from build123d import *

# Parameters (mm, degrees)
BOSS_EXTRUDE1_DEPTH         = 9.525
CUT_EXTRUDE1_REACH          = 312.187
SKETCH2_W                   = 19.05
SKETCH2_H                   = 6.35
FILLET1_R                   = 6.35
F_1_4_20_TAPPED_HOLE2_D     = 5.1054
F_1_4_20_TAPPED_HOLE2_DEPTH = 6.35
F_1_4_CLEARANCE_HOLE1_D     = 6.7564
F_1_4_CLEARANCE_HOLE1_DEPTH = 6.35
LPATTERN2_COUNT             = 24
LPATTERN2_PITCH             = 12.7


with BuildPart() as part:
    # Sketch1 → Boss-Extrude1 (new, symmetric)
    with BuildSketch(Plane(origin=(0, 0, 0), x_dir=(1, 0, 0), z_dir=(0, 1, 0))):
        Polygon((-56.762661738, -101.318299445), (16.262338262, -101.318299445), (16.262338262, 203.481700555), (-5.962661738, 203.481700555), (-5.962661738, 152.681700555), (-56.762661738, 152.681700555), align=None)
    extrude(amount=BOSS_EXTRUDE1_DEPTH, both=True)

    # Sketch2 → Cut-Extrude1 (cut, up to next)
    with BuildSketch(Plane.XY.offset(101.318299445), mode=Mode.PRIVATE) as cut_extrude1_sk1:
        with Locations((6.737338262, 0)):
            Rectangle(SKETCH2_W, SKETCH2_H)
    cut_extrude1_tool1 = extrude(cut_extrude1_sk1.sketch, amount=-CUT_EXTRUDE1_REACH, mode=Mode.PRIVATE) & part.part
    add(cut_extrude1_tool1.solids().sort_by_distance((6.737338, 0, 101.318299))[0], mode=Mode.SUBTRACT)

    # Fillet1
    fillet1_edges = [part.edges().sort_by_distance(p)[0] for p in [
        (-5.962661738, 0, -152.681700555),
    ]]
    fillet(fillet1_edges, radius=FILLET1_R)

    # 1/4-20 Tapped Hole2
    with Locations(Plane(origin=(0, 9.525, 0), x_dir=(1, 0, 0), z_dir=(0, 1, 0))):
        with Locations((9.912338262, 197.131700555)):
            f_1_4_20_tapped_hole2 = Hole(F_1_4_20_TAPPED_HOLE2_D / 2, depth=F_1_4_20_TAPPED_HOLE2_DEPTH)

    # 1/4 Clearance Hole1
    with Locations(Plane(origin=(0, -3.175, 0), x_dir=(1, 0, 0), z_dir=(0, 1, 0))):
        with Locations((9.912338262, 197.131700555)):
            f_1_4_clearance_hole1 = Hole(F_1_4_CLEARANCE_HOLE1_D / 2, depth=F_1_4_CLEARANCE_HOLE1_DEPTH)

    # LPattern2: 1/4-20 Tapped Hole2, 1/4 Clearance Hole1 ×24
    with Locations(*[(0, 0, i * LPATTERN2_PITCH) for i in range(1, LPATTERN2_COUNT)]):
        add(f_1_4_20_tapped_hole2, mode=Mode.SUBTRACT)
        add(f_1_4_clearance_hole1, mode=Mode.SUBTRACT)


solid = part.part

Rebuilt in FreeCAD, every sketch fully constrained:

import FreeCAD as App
import Part
import Sketcher
from FreeCAD import Vector
Q = App.Units.Quantity


def edges_at(feature, points):
    """Names of the edges that pass closest to the given points."""
    edges = feature.Shape.Edges
    near = lambda p: min(range(len(edges)), key=lambda i: edges[i].distToShape(Part.Vertex(*p))[0])
    return sorted({f"Edge{near(p) + 1}" for p in points})

doc = App.newDocument("Part")
body = doc.addObject("PartDesign::Body", "Body")

# Sketch on XZ plane
sketch1 = body.newObject("Sketcher::SketchObject", "Sketch")
sketch1.AttachmentSupport = (doc.getObject("XZ_Plane"), [""])
sketch1.MapMode = "FlatFace"
sketch1.addGeometry([
    Part.LineSegment(Vector(-57, 101, 0), Vector(16, 101, 0)),  # 0
    Part.LineSegment(Vector(16, 101, 0), Vector(16, -203, 0)),  # 1
    Part.LineSegment(Vector(16, -203, 0), Vector(-6, -203, 0)),  # 2
    Part.LineSegment(Vector(-6, -203, 0), Vector(-6, -153, 0)),  # 3
    Part.LineSegment(Vector(-6, -153, 0), Vector(-57, -153, 0)),  # 4
    Part.LineSegment(Vector(-57, -153, 0), Vector(-57, 101, 0)),  # 5
], False)
sketch1.addConstraint([
    Sketcher.Constraint("Coincident", 0, 2, 1, 1),
    Sketcher.Constraint("Coincident", 1, 2, 2, 1),
    Sketcher.Constraint("Coincident", 2, 2, 3, 1),
    Sketcher.Constraint("Coincident", 3, 2, 4, 1),
    Sketcher.Constraint("Coincident", 4, 2, 5, 1),
    Sketcher.Constraint("Coincident", 5, 2, 0, 1),
    Sketcher.Constraint("Horizontal", 0),
    Sketcher.Constraint("Vertical", 1),
    Sketcher.Constraint("Horizontal", 2),
    Sketcher.Constraint("Vertical", 3),
    Sketcher.Constraint("Horizontal", 4),
    Sketcher.Constraint("Vertical", 5),
    Sketcher.Constraint("Equal", 4, 3),
    Sketcher.Constraint("DistanceX", 4, 2, 4, 1, Q("2 in")),
    Sketcher.Constraint("DistanceY", 1, 2, 1, 1, Q("12 in")),
    Sketcher.Constraint("DistanceX", 0, 1, 0, 2, Q("2.875 in")),
    Sketcher.Constraint("DistanceY", -1, 1, 0, 2, Q("101.318299 mm")),
    Sketcher.Constraint("DistanceX", -1, 1, 0, 2, Q("16.262338 mm")),
])
pad1 = body.newObject("PartDesign::Pad", "Pad")
pad1.Profile = sketch1
pad1.Length = Q("0.75 in")
pad1.Midplane = True

# Sketch on XY plane
sketch2 = body.newObject("Sketcher::SketchObject", "Sketch001")
sketch2.AttachmentSupport = (doc.getObject("XY_Plane"), [""])
sketch2.MapMode = "FlatFace"
sketch2.AttachmentOffset = App.Placement(Vector(0, 0, 101.318299), App.Rotation())
sketch2.addGeometry([
    Part.LineSegment(Vector(-3, 3, 0), Vector(-3, -3, 0)),
    Part.LineSegment(Vector(-3, -3, 0), Vector(16, -3, 0)),
    Part.LineSegment(Vector(16, -3, 0), Vector(16, 3, 0)),
    Part.LineSegment(Vector(16, 3, 0), Vector(-3, 3, 0)),
], False)
sketch2.addConstraint([
    Sketcher.Constraint("Coincident", 0, 2, 1, 1),
    Sketcher.Constraint("Coincident", 1, 2, 2, 1),
    Sketcher.Constraint("Coincident", 2, 2, 3, 1),
    Sketcher.Constraint("Coincident", 3, 2, 0, 1),
    Sketcher.Constraint("Vertical", 0),
    Sketcher.Constraint("Horizontal", 1),
    Sketcher.Constraint("Vertical", 2),
    Sketcher.Constraint("Horizontal", 3),
    Sketcher.Constraint("DistanceX", 1, 1, 1, 2, Q("0.75 in")),
    Sketcher.Constraint("DistanceY", 0, 2, 0, 1, Q("0.25 in")),
    Sketcher.Constraint("DistanceY", 0, 2, -1, 1, Q("0.125 in")),
    Sketcher.Constraint("DistanceX", 0, 2, -1, 1, Q("2.787662 mm")),
])
pocket1 = body.newObject("PartDesign::Pocket", "Pocket")
pocket1.Profile = sketch2
pocket1.Type = "UpToFirst"
doc.recompute()

fillet = body.newObject("PartDesign::Fillet", "Fillet")
fillet.Base = (pocket1, edges_at(pocket1, [(-5.963, 0, -152.682)]))
fillet.Radius = Q("0.25 in")

# Sketch on XZ plane
sketch3 = body.newObject("Sketcher::SketchObject", "Sketch002")
sketch3.AttachmentSupport = (doc.getObject("XZ_Plane"), [""])
sketch3.MapMode = "FlatFace"
sketch3.AttachmentOffset = App.Placement(Vector(0, 0, -0.375 * 25.4), App.Rotation())
sketch3.addGeometry(Part.Circle(Vector(9.9, -197.1, 0), Vector(0, 0, 1), 2.6), False)
sketch3.addConstraint([
    Sketcher.Constraint("Diameter", 0, Q("0.201 in")),
    Sketcher.Constraint("DistanceY", 0, 3, -1, 1, Q("197.131701 mm")),
    Sketcher.Constraint("DistanceX", -1, 1, 0, 3, Q("9.912338 mm")),
])
doc.recompute()
hole = body.newObject("PartDesign::Hole", "Hole")
hole.Profile = sketch3
hole.ThreadType = "None"
hole.Diameter = Q("0.201 in")
hole.DepthType = "Dimension"
hole.Depth = Q("0.25 in")
hole.DrillPoint = "Flat"
hole.Reversed = True

# Sketch on XZ plane
sketch4 = body.newObject("Sketcher::SketchObject", "Sketch003")
sketch4.AttachmentSupport = (doc.getObject("XZ_Plane"), [""])
sketch4.MapMode = "FlatFace"
sketch4.AttachmentOffset = App.Placement(Vector(0, 0, 0.125 * 25.4), App.Rotation())
sketch4.addGeometry(Part.Circle(Vector(9.9, -197.1, 0), Vector(0, 0, 1), 3.4), False)
sketch4.addConstraint([
    Sketcher.Constraint("Diameter", 0, Q("0.266 in")),
    Sketcher.Constraint("DistanceY", 0, 3, -1, 1, Q("197.131701 mm")),
    Sketcher.Constraint("DistanceX", -1, 1, 0, 3, Q("9.912338 mm")),
])
doc.recompute()
hole2 = body.newObject("PartDesign::Hole", "Hole001")
hole2.Profile = sketch4
hole2.ThreadType = "None"
hole2.Diameter = Q("0.266 in")
hole2.DepthType = "Dimension"
hole2.Depth = Q("0.25 in")
hole2.DrillPoint = "Flat"
hole2.Reversed = True
doc.recompute()

linearpattern = body.newObject("PartDesign::LinearPattern", "LinearPattern")
linearpattern.Originals = [hole, hole2]
linearpattern.Direction = (doc.getObject("Z_Axis"), [""])
linearpattern.Mode = "offset"
linearpattern.Offset = Q("0.5 in")
linearpattern.Occurrences = 24
body.Tip = linearpattern

doc.recompute()
